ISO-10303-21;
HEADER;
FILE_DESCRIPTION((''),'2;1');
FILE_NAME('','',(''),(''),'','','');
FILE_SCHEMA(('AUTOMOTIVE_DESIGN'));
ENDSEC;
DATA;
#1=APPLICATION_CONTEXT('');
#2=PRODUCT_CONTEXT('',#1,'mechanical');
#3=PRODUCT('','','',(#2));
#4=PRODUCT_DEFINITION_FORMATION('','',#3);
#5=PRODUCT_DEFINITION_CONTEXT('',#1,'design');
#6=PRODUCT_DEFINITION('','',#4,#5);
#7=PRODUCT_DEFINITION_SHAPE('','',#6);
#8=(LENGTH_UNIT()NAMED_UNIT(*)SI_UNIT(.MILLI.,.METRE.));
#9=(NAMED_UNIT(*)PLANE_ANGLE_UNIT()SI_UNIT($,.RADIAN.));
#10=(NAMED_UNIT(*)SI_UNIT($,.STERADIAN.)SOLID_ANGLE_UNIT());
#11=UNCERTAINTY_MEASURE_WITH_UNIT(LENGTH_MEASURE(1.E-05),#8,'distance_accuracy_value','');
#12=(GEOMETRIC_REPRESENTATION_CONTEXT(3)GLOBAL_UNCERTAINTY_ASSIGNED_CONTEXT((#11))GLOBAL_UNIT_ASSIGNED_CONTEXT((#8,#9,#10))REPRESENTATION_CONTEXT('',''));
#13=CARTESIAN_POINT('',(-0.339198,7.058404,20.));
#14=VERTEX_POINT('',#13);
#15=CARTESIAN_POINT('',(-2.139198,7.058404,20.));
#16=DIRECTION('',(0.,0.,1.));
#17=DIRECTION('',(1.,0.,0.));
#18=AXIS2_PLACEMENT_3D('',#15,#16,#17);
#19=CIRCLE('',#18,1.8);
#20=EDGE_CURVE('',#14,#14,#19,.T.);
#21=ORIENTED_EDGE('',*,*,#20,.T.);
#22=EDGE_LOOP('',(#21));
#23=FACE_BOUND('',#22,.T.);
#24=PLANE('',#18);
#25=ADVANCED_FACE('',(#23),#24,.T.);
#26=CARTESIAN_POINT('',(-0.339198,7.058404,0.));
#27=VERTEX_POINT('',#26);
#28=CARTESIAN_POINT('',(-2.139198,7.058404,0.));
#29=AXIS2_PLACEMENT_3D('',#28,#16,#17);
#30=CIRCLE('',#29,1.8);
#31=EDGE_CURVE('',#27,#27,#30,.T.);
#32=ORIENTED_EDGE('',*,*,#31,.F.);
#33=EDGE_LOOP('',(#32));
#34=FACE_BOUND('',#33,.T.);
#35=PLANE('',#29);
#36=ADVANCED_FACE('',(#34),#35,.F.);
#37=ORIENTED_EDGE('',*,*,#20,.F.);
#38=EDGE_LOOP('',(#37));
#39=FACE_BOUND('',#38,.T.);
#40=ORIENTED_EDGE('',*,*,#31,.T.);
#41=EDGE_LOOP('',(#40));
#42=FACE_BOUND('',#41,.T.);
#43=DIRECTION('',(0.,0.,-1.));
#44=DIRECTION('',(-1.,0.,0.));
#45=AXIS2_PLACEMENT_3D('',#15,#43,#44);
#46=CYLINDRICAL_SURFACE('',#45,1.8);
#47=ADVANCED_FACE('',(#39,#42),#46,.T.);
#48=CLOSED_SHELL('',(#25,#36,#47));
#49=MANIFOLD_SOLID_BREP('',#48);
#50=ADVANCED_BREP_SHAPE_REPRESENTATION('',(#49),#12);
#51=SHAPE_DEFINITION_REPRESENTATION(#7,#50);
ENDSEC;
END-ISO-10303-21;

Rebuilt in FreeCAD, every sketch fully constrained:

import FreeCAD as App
import Part
import Sketcher

V = App.Vector
Q = App.Units.Quantity

doc = App.newDocument("Part")
body = doc.addObject("PartDesign::Body", "Body")

# Sketch on XY plane
sketch1 = body.newObject("Sketcher::SketchObject", "Sketch")
sketch1.AttachmentSupport = (doc.getObject("XY_Plane"), [""])
sketch1.MapMode = "FlatFace"
sketch1.addGeometry(Part.Circle(V(-2.1, 7.1, 0), V(0, 0, 1), 1.8), False)
sketch1.addConstraint(Sketcher.Constraint("Diameter", 0, Q("3.6 mm")))
sketch1.addConstraint(Sketcher.Constraint("DistanceX", 0, 3, -1, 1, Q("2.139198 mm")))
sketch1.addConstraint(Sketcher.Constraint("DistanceY", -1, 1, 0, 3, Q("7.058404 mm")))
pad1 = body.newObject("PartDesign::Pad", "Pad")
pad1.Profile = sketch1
pad1.Length = 20

doc.recompute()
